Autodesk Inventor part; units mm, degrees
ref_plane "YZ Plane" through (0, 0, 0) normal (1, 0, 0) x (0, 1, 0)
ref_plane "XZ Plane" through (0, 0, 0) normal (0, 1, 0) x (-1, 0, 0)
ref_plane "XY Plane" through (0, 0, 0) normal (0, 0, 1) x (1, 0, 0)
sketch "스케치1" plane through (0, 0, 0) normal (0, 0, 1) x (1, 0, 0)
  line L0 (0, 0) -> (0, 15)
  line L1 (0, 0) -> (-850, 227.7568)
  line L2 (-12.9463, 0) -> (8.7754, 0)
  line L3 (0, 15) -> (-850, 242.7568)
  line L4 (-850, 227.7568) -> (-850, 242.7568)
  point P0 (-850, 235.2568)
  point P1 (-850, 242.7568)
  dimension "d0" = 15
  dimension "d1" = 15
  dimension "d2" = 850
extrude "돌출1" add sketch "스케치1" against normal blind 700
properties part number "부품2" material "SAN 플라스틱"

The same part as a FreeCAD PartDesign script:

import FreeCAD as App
import Part
import Sketcher
Q = App.Units.Quantity


def add_polygon(sketch, points):
    """Adds a closed chain of lines whose ends are joined by coincident constraints."""
    first, n = sketch.GeometryCount, len(points)
    for a, b in zip(points, points[1:] + points[:1]):
        sketch.addGeometry(Part.LineSegment(App.Vector(*a, 0), App.Vector(*b, 0)), False)
    for i in range(n):
        sketch.addConstraint(Sketcher.Constraint("Coincident", first + i, 2, first + (i + 1) % n, 1))

doc = App.newDocument("Part")
body = doc.addObject("PartDesign::Body", "Body")

# Sketch on XY plane
sketch1 = doc.addObject("Sketcher::SketchObject", "Sketch")
body.addObject(sketch1)
sketch1.AttachmentSupport = (doc.XY_Plane, [""])
sketch1.MapMode = "FlatFace"
add_polygon(sketch1, [(-850, 228), (0, 0), (0, 15), (-850, 243)])  # lines 0-3
sketch1.addConstraint(Sketcher.Constraint("Vertical", 1))
sketch1.addConstraint(Sketcher.Constraint("Vertical", 3))
sketch1.addConstraint(Sketcher.Constraint("Coincident", 0, 2, -1, 1))
sketch1.addConstraint(Sketcher.Constraint("Parallel", 0, 2))
sketch1.addConstraint(Sketcher.Constraint("DistanceY", 1, 1, 1, 2, 15.0))
sketch1.addConstraint(Sketcher.Constraint("Angle", 0, Q("-15 deg")))
sketch1.addConstraint(Sketcher.Constraint("DistanceX", 2, 2, -1, 1, 850.0))
pad1 = doc.addObject("PartDesign::Pad", "Pad")
body.addObject(pad1)
pad1.Profile = sketch1
pad1.Length = 700
pad1.Reversed = True

doc.recompute()
